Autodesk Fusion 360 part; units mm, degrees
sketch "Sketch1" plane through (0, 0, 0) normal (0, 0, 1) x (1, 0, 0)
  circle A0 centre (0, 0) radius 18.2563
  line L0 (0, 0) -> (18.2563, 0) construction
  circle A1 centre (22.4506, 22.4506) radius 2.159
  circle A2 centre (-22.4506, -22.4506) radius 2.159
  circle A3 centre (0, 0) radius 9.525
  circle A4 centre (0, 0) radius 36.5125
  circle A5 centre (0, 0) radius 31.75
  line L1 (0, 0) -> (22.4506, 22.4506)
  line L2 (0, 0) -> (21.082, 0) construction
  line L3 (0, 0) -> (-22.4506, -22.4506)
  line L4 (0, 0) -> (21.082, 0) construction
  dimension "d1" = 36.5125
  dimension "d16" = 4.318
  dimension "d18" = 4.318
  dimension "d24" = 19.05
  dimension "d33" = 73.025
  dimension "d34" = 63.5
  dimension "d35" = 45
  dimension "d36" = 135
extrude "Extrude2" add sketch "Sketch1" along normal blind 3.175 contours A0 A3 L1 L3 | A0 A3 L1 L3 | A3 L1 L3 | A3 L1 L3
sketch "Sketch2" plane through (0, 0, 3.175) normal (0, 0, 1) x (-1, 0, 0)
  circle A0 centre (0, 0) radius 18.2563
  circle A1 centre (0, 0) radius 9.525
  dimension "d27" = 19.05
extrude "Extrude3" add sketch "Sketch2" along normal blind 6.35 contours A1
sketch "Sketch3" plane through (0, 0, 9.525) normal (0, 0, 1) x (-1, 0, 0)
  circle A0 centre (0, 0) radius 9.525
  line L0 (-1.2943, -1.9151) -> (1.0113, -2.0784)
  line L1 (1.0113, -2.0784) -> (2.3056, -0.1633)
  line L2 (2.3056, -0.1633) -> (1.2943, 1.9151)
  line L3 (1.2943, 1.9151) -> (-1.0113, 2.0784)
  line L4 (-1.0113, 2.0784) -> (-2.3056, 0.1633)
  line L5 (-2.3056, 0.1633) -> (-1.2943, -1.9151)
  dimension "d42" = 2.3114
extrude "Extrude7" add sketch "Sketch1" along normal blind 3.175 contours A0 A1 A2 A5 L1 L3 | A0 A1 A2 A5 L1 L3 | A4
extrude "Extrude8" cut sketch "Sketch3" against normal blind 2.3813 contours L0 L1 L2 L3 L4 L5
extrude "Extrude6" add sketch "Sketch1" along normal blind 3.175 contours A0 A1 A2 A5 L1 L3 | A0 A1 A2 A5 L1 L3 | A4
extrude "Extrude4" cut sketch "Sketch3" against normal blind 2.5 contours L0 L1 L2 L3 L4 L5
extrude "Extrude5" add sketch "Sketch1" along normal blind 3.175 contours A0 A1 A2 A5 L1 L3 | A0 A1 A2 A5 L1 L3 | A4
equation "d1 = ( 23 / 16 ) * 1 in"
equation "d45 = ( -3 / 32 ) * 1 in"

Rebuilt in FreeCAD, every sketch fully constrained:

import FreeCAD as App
import Part
import Sketcher

V = App.Vector
Q = App.Units.Quantity


def add_polygon(sketch, points):
    """Adds a closed chain of lines whose ends are joined by coincident constraints."""
    first, n = sketch.GeometryCount, len(points)
    for a, b in zip(points, points[1:] + points[:1]):
        sketch.addGeometry(Part.LineSegment(App.Vector(*a, 0), App.Vector(*b, 0)), False)
    for i in range(n):
        sketch.addConstraint(Sketcher.Constraint("Coincident", first + i, 2, first + (i + 1) % n, 1))

doc = App.newDocument("Part")
params = doc.addObject("Spreadsheet::Sheet", "Params")
for row, (alias, value) in enumerate([
    ("sketch1_diameter", "1.4375 in"),
    ("pad1_length", "0.125 in"),
    ("sketch2_diameter", "0.75 in"),
    ("pad2_length", "0.25 in"),
    ("sketch3_diameter", "0.17 in"),
    ("sketch3_diameter2", "2.875 in"),
    ("sketch3_diameter3", "1.4375 in"),
    ("pad3_length", "0.125 in"),
    ("sketch4_length", "0.091 in"),
    ("pocket1_length", "0.093752 in"),
    ("sketch5_diameter", "0.17 in"),
    ("sketch5_diameter2", "2.875 in"),
    ("sketch5_diameter3", "1.4375 in"),
    ("pad4_length", "0.125 in"),
    ("sketch6_length", "0.091 in"),
    ("pocket2_length", "2.5 mm"),
    ("sketch7_diameter", "0.17 in"),
    ("sketch7_diameter2", "2.875 in"),
    ("sketch7_diameter3", "1.4375 in"),
    ("pad5_length", "0.125 in"),
], start=1):
    params.set(f"A{row}", alias)
    params.set(f"B{row}", "=" + value)
    params.setAlias(f"B{row}", alias)

body = doc.addObject("PartDesign::Body", "Body")

# Sketch on XY plane
sketch1 = body.newObject("Sketcher::SketchObject", "Sketch")
sketch1.AttachmentSupport = (doc.getObject("XY_Plane"), [""])
sketch1.MapMode = "FlatFace"
sketch1.addGeometry(Part.Circle(V(0, 0, 0), V(0, 0, 1), 18), False)
sketch1.addConstraint([
    Sketcher.Constraint("Coincident", 0, 3, -1, 1),
    Sketcher.Constraint("Diameter", 0, Q("1.4375 in")),
])
sketch1.setExpression("Constraints[1]", "Params.sketch1_diameter")
pad1 = body.newObject("PartDesign::Pad", "Pad")
pad1.Profile = sketch1
pad1.setExpression("Length", "Params.pad1_length")

# Sketch on XY plane
sketch2 = body.newObject("Sketcher::SketchObject", "Sketch001")
sketch2.AttachmentSupport = (doc.getObject("XY_Plane"), [""])
sketch2.MapMode = "FlatFace"
sketch2.AttachmentOffset = App.Placement(V(0, 0, 0.125 * 25.4), App.Rotation())
sketch2.addGeometry(Part.Circle(V(0, 0, 0), V(0, 0, 1), 10), False)
sketch2.addConstraint([
    Sketcher.Constraint("Coincident", 0, 3, -1, 1),
    Sketcher.Constraint("Diameter", 0, Q("0.75 in")),
])
sketch2.setExpression("Constraints[1]", "Params.sketch2_diameter")
pad2 = body.newObject("PartDesign::Pad", "Pad001")
pad2.Profile = sketch2
pad2.setExpression("Length", "Params.pad2_length")

# Sketch on XY plane
sketch3 = body.newObject("Sketcher::SketchObject", "Sketch002")
sketch3.AttachmentSupport = (doc.getObject("XY_Plane"), [""])
sketch3.MapMode = "FlatFace"
sketch3.addGeometry([
    Part.Circle(V(0, 0, 0), V(0, 0, 1), 36.5),
    Part.Circle(V(0, 0, 0), V(0, 0, 1), 18.3),
    Part.Circle(V(22.5, 22.5, 0), V(0, 0, 1), 2.2),
    Part.Circle(V(-22.5, -22.5, 0), V(0, 0, 1), 2.2),
], False)
sketch3.addConstraint([
    Sketcher.Constraint("Coincident", 0, 3, -1, 1),
    Sketcher.Constraint("Coincident", 1, 3, -1, 1),
    Sketcher.Constraint("Equal", 2, 3),
    Sketcher.Constraint("Symmetric", 2, 3, 3, 3, -1, 1),
    Sketcher.Constraint("Diameter", 2, Q("0.17 in")),
    Sketcher.Constraint("Diameter", 0, Q("2.875 in")),
    Sketcher.Constraint("Diameter", 1, Q("1.4375 in")),
    Sketcher.Constraint("DistanceX", -1, 1, 2, 3, 22.4506),
    Sketcher.Constraint("DistanceY", -1, 1, 2, 3, 22.4506),
])
sketch3.setExpression("Constraints[4]", "Params.sketch3_diameter")
sketch3.setExpression("Constraints[5]", "Params.sketch3_diameter2")
sketch3.setExpression("Constraints[6]", "Params.sketch3_diameter3")
pad3 = body.newObject("PartDesign::Pad", "Pad002")
pad3.Profile = sketch3
pad3.setExpression("Length", "Params.pad3_length")

# Sketch on XY plane
sketch4 = body.newObject("Sketcher::SketchObject", "Sketch003")
sketch4.AttachmentSupport = (doc.getObject("XY_Plane"), [""])
sketch4.MapMode = "FlatFace"
sketch4.AttachmentOffset = App.Placement(V(0, 0, 0.375 * 25.4), App.Rotation())
add_polygon(sketch4, [(2.3, -0.2), (1.3, 1.9), (-1, 2.1), (-2.3, 0.2), (-1.3, -1.9), (1, -2.1)])  # lines 0-5
sketch4.addConstraint([
    Sketcher.Constraint("Symmetric", 0, 2, 3, 2, -1, 1),
    Sketcher.Constraint("Symmetric", 1, 2, 4, 2, -1, 1),
    Sketcher.Constraint("Symmetric", 2, 2, 5, 2, -1, 1),
    Sketcher.Constraint("Equal", 0, 1),
    Sketcher.Constraint("Equal", 1, 2),
    Sketcher.Constraint("Distance", 0, Q("0.091 in")),
    Sketcher.Constraint("DistanceY", -1, 1, 0, 2, Q("0.0754 in")),
    Sketcher.Constraint("DistanceY", 2, 2, 1, 2, Q("0.0754 in")),
    Sketcher.Constraint("DistanceX", -1, 1, 0, 2, 1.2943),
])
sketch4.setExpression("Constraints[11]", "Params.sketch4_length")
pocket1 = body.newObject("PartDesign::Pocket", "Pocket")
pocket1.Profile = sketch4
pocket1.setExpression("Length", "Params.pocket1_length")

# Sketch on XY plane
sketch5 = body.newObject("Sketcher::SketchObject", "Sketch004")
sketch5.AttachmentSupport = (doc.getObject("XY_Plane"), [""])
sketch5.MapMode = "FlatFace"
sketch5.addGeometry([
    Part.Circle(V(0, 0, 0), V(0, 0, 1), 36.5),
    Part.Circle(V(0, 0, 0), V(0, 0, 1), 18.3),
    Part.Circle(V(22.5, 22.5, 0), V(0, 0, 1), 2.2),
    Part.Circle(V(-22.5, -22.5, 0), V(0, 0, 1), 2.2),
], False)
sketch5.addConstraint([
    Sketcher.Constraint("Coincident", 0, 3, -1, 1),
    Sketcher.Constraint("Coincident", 1, 3, -1, 1),
    Sketcher.Constraint("Equal", 2, 3),
    Sketcher.Constraint("Symmetric", 2, 3, 3, 3, -1, 1),
    Sketcher.Constraint("Diameter", 2, Q("0.17 in")),
    Sketcher.Constraint("Diameter", 0, Q("2.875 in")),
    Sketcher.Constraint("Diameter", 1, Q("1.4375 in")),
    Sketcher.Constraint("DistanceX", -1, 1, 2, 3, 22.4506),
    Sketcher.Constraint("DistanceY", -1, 1, 2, 3, 22.4506),
])
sketch5.setExpression("Constraints[4]", "Params.sketch5_diameter")
sketch5.setExpression("Constraints[5]", "Params.sketch5_diameter2")
sketch5.setExpression("Constraints[6]", "Params.sketch5_diameter3")
pad4 = body.newObject("PartDesign::Pad", "Pad003")
pad4.Profile = sketch5
pad4.setExpression("Length", "Params.pad4_length")

# Sketch on XY plane
sketch6 = body.newObject("Sketcher::SketchObject", "Sketch005")
sketch6.AttachmentSupport = (doc.getObject("XY_Plane"), [""])
sketch6.MapMode = "FlatFace"
sketch6.AttachmentOffset = App.Placement(V(0, 0, 0.375 * 25.4), App.Rotation())
add_polygon(sketch6, [(2.3, -0.2), (1.3, 1.9), (-1, 2.1), (-2.3, 0.2), (-1.3, -1.9), (1, -2.1)])  # lines 0-5
sketch6.addConstraint([
    Sketcher.Constraint("Symmetric", 0, 2, 3, 2, -1, 1),
    Sketcher.Constraint("Symmetric", 1, 2, 4, 2, -1, 1),
    Sketcher.Constraint("Symmetric", 2, 2, 5, 2, -1, 1),
    Sketcher.Constraint("Equal", 0, 1),
    Sketcher.Constraint("Equal", 1, 2),
    Sketcher.Constraint("Distance", 0, Q("0.091 in")),
    Sketcher.Constraint("DistanceY", -1, 1, 0, 2, Q("0.0754 in")),
    Sketcher.Constraint("DistanceY", 2, 2, 1, 2, Q("0.0754 in")),
    Sketcher.Constraint("DistanceX", -1, 1, 0, 2, 1.2943),
])
sketch6.setExpression("Constraints[11]", "Params.sketch6_length")
pocket2 = body.newObject("PartDesign::Pocket", "Pocket001")
pocket2.Profile = sketch6
pocket2.setExpression("Length", "Params.pocket2_length")

# Sketch on XY plane
sketch7 = body.newObject("Sketcher::SketchObject", "Sketch006")
sketch7.AttachmentSupport = (doc.getObject("XY_Plane"), [""])
sketch7.MapMode = "FlatFace"
sketch7.addGeometry([
    Part.Circle(V(0, 0, 0), V(0, 0, 1), 36.5),
    Part.Circle(V(0, 0, 0), V(0, 0, 1), 18.3),
    Part.Circle(V(22.5, 22.5, 0), V(0, 0, 1), 2.2),
    Part.Circle(V(-22.5, -22.5, 0), V(0, 0, 1), 2.2),
], False)
sketch7.addConstraint([
    Sketcher.Constraint("Coincident", 0, 3, -1, 1),
    Sketcher.Constraint("Coincident", 1, 3, -1, 1),
    Sketcher.Constraint("Equal", 2, 3),
    Sketcher.Constraint("Symmetric", 2, 3, 3, 3, -1, 1),
    Sketcher.Constraint("Diameter", 2, Q("0.17 in")),
    Sketcher.Constraint("Diameter", 0, Q("2.875 in")),
    Sketcher.Constraint("Diameter", 1, Q("1.4375 in")),
    Sketcher.Constraint("DistanceX", -1, 1, 2, 3, 22.4506),
    Sketcher.Constraint("DistanceY", -1, 1, 2, 3, 22.4506),
])
sketch7.setExpression("Constraints[4]", "Params.sketch7_diameter")
sketch7.setExpression("Constraints[5]", "Params.sketch7_diameter2")
sketch7.setExpression("Constraints[6]", "Params.sketch7_diameter3")
pad5 = body.newObject("PartDesign::Pad", "Pad004")
pad5.Profile = sketch7
pad5.setExpression("Length", "Params.pad5_length")

doc.recompute()
